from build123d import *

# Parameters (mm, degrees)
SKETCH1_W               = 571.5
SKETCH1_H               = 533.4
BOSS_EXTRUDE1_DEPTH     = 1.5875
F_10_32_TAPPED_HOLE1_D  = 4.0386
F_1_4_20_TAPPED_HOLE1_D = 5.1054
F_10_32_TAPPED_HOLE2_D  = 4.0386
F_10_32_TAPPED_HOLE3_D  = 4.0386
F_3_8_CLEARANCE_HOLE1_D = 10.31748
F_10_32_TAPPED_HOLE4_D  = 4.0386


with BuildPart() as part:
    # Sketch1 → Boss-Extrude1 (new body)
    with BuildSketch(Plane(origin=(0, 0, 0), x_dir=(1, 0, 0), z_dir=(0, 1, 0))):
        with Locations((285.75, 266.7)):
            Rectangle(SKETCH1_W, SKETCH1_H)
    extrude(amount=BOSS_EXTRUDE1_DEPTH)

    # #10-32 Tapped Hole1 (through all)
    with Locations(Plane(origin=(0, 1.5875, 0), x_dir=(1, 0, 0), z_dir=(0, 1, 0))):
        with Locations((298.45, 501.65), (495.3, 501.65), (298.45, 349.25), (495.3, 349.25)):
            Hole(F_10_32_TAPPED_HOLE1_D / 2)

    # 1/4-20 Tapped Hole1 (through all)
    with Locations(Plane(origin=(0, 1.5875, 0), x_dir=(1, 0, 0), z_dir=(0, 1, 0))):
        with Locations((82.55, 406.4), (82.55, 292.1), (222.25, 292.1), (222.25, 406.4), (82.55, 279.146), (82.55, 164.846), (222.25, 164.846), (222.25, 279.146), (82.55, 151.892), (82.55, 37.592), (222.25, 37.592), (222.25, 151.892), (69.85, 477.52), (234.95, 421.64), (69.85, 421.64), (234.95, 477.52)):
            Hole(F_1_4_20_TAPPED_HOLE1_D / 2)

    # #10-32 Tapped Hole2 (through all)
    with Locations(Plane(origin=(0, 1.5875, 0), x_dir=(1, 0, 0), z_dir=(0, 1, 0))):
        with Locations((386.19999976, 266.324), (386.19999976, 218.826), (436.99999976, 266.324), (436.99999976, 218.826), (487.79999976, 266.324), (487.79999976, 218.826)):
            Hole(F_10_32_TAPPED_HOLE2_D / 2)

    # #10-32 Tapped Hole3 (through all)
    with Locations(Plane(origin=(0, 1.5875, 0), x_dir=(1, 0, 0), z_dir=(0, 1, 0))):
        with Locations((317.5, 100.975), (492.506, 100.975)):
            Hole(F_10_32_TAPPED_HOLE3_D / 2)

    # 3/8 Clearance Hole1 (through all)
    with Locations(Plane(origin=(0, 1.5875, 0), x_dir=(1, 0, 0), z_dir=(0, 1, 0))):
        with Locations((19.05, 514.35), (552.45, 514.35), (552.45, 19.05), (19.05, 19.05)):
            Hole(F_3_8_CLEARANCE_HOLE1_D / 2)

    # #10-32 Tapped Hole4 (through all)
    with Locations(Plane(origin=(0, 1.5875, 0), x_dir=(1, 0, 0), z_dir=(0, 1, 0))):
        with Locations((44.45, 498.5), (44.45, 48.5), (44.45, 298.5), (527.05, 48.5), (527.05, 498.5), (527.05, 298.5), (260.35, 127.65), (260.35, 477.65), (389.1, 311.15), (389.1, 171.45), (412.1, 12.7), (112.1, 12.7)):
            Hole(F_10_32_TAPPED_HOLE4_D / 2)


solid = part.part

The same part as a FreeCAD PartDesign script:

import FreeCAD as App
import Part
import Sketcher
Q = App.Units.Quantity


def add_polygon(sketch, points):
    """Adds a closed chain of lines whose ends are joined by coincident constraints."""
    first, n = sketch.GeometryCount, len(points)
    for a, b in zip(points, points[1:] + points[:1]):
        sketch.addGeometry(Part.LineSegment(App.Vector(*a, 0), App.Vector(*b, 0)), False)
    for i in range(n):
        sketch.addConstraint(Sketcher.Constraint("Coincident", first + i, 2, first + (i + 1) % n, 1))

doc = App.newDocument("Part")
params = doc.addObject("Spreadsheet::Sheet", "Params")
for row, (alias, value) in enumerate([
    ("sketch1_height", "21 in"),
    ("sketch1_width", "22.5 in"),
    ("pad1_length", "0.0625 in"),
    ("sketch2_diameter", "0.159 in"),
    ("hole_diameter", "0.159 in"),
    ("sketch3_diameter", "0.201 in"),
    ("hole2_diameter", "0.201 in"),
    ("sketch4_diameter", "0.159 in"),
    ("hole3_diameter", "0.159 in"),
    ("sketch5_diameter", "0.159 in"),
    ("hole4_diameter", "0.159 in"),
    ("hole5_diameter", "0.4062 in"),
    ("sketch7_diameter", "0.159 in"),
    ("hole6_diameter", "0.159 in"),
], start=1):
    params.set(f"A{row}", alias)
    params.set(f"B{row}", "=" + value)
    params.setAlias(f"B{row}", alias)

body = doc.addObject("PartDesign::Body", "Body")

# Sketch on XZ plane
sketch1 = body.newObject("Sketcher::SketchObject", "Sketch")
sketch1.AttachmentSupport = (doc.getObject("XZ_Plane"), [""])
sketch1.MapMode = "FlatFace"
add_polygon(sketch1, [(0, -533), (0, 0), (572, 0), (572, -533)])  # lines 0-3
sketch1.addConstraint([
    Sketcher.Constraint("Vertical", 0),
    Sketcher.Constraint("Horizontal", 1),
    Sketcher.Constraint("Vertical", 2),
    Sketcher.Constraint("Horizontal", 3),
    Sketcher.Constraint("Coincident", 0, 2, -1, 1),
    Sketcher.Constraint("DistanceY", 0, 1, 0, 2, Q("21 in")),
    Sketcher.Constraint("DistanceX", 1, 1, 1, 2, Q("22.5 in")),
])
sketch1.setExpression("Constraints[9]", "Params.sketch1_height")
sketch1.setExpression("Constraints[10]", "Params.sketch1_width")
pad1 = body.newObject("PartDesign::Pad", "Pad")
pad1.Profile = sketch1
pad1.setExpression("Length", "Params.pad1_length")
pad1.Reversed = True

# Sketch on XZ plane
sketch2 = body.newObject("Sketcher::SketchObject", "Sketch001")
sketch2.AttachmentSupport = (doc.getObject("XZ_Plane"), [""])
sketch2.MapMode = "FlatFace"
sketch2.AttachmentOffset = App.Placement(App.Vector(0, 0, -0.0625 * 25.4), App.Rotation())
sketch2.addGeometry([
    Part.Circle(App.Vector(298.4, -501.6, 0), App.Vector(0, 0, 1), 2),
    Part.Circle(App.Vector(495.3, -501.6, 0), App.Vector(0, 0, 1), 2),
    Part.Circle(App.Vector(298.4, -349.2, 0), App.Vector(0, 0, 1), 2),
    Part.Circle(App.Vector(495.3, -349.2, 0), App.Vector(0, 0, 1), 2),
], False)
sketch2.addConstraint([
    Sketcher.Constraint("Equal", 0, 1),
    Sketcher.Constraint("Equal", 1, 2),
    Sketcher.Constraint("Equal", 2, 3),
    Sketcher.Constraint("Horizontal", 0, 3, 1, 3),
    Sketcher.Constraint("Horizontal", 2, 3, 3, 3),
    Sketcher.Constraint("Vertical", 0, 3, 2, 3),
    Sketcher.Constraint("Vertical", 1, 3, 3, 3),
    Sketcher.Constraint("Diameter", 0, Q("0.159 in")),
    Sketcher.Constraint("DistanceY", 0, 3, 2, 3, Q("6 in")),
    Sketcher.Constraint("DistanceX", -1, 1, 1, 3, Q("19.5 in")),
    Sketcher.Constraint("DistanceX", -1, 1, 0, 3, Q("11.75 in")),
    Sketcher.Constraint("DistanceY", 0, 3, -1, 1, Q("19.75 in")),
])
sketch2.setExpression("Constraints[7]", "Params.sketch2_diameter")
doc.recompute()
hole = body.newObject("PartDesign::Hole", "Hole")
hole.Profile = sketch2
hole.ThreadType = "None"
hole.setExpression("Diameter", "Params.hole_diameter")
hole.DepthType = "ThroughAll"
hole.Reversed = True

# Sketch on XZ plane
sketch3 = body.newObject("Sketcher::SketchObject", "Sketch002")
sketch3.AttachmentSupport = (doc.getObject("XZ_Plane"), [""])
sketch3.MapMode = "FlatFace"
sketch3.AttachmentOffset = App.Placement(App.Vector(0, 0, -0.0625 * 25.4), App.Rotation())
sketch3.addGeometry([
    Part.Circle(App.Vector(82.5, -406.4, 0), App.Vector(0, 0, 1), 2.6),  # 0
    Part.Circle(App.Vector(82.5, -292.1, 0), App.Vector(0, 0, 1), 2.6),  # 1
    Part.Circle(App.Vector(222.2, -292.1, 0), App.Vector(0, 0, 1), 2.6),  # 2
    Part.Circle(App.Vector(222.2, -406.4, 0), App.Vector(0, 0, 1), 2.6),  # 3
    Part.Circle(App.Vector(82.5, -279.1, 0), App.Vector(0, 0, 1), 2.6),  # 4
    Part.Circle(App.Vector(82.5, -164.8, 0), App.Vector(0, 0, 1), 2.6),  # 5
    Part.Circle(App.Vector(222.2, -164.8, 0), App.Vector(0, 0, 1), 2.6),  # 6
    Part.Circle(App.Vector(222.2, -279.1, 0), App.Vector(0, 0, 1), 2.6),  # 7
    Part.Circle(App.Vector(82.5, -151.9, 0), App.Vector(0, 0, 1), 2.6),  # 8
    Part.Circle(App.Vector(82.5, -37.6, 0), App.Vector(0, 0, 1), 2.6),  # 9
    Part.Circle(App.Vector(222.2, -37.6, 0), App.Vector(0, 0, 1), 2.6),  # 10
    Part.Circle(App.Vector(222.2, -151.9, 0), App.Vector(0, 0, 1), 2.6),  # 11
    Part.Circle(App.Vector(69.8, -477.5, 0), App.Vector(0, 0, 1), 2.6),  # 12
    Part.Circle(App.Vector(234.9, -421.6, 0), App.Vector(0, 0, 1), 2.6),  # 13
    Part.Circle(App.Vector(69.8, -421.6, 0), App.Vector(0, 0, 1), 2.6),  # 14
    Part.Circle(App.Vector(234.9, -477.5, 0), App.Vector(0, 0, 1), 2.6),  # 15
], False)
sketch3.addConstraint([
    Sketcher.Constraint("Equal", 0, 1),
    Sketcher.Constraint("Equal", 1, 2),
    Sketcher.Constraint("Equal", 2, 3),
    Sketcher.Constraint("Equal", 3, 4),
    Sketcher.Constraint("Equal", 4, 5),
    Sketcher.Constraint("Equal", 5, 6),
    Sketcher.Constraint("Equal", 6, 7),
    Sketcher.Constraint("Equal", 7, 8),
    Sketcher.Constraint("Equal", 8, 9),
    Sketcher.Constraint("Equal", 9, 10),
    Sketcher.Constraint("Equal", 10, 11),
    Sketcher.Constraint("Equal", 11, 12),
    Sketcher.Constraint("Equal", 12, 13),
    Sketcher.Constraint("Equal", 13, 14),
    Sketcher.Constraint("Equal", 14, 15),
    Sketcher.Constraint("Horizontal", 1, 3, 2, 3),
    Sketcher.Constraint("Horizontal", 0, 3, 3, 3),
    Sketcher.Constraint("Horizontal", 5, 3, 6, 3),
    Sketcher.Constraint("Horizontal", 4, 3, 7, 3),
    Sketcher.Constraint("Horizontal", 9, 3, 10, 3),
    Sketcher.Constraint("Horizontal", 8, 3, 11, 3),
    Sketcher.Constraint("Horizontal", 13, 3, 14, 3),
    Sketcher.Constraint("Horizontal", 12, 3, 15, 3),
    Sketcher.Constraint("Vertical", 0, 3, 1, 3),
    Sketcher.Constraint("Vertical", 2, 3, 3, 3),
    Sketcher.Constraint("Vertical", 1, 3, 4, 3),
    Sketcher.Constraint("Vertical", 4, 3, 5, 3),
    Sketcher.Constraint("Vertical", 3, 3, 6, 3),
    Sketcher.Constraint("Vertical", 6, 3, 7, 3),
    Sketcher.Constraint("Vertical", 5, 3, 8, 3),
    Sketcher.Constraint("Vertical", 8, 3, 9, 3),
    Sketcher.Constraint("Vertical", 7, 3, 10, 3),
    Sketcher.Constraint("Vertical", 10, 3, 11, 3),
    Sketcher.Constraint("Vertical", 12, 3, 14, 3),
    Sketcher.Constraint("Vertical", 13, 3, 15, 3),
    Sketcher.Constraint("Diameter", 0, Q("0.201 in")),
    Sketcher.Constraint("DistanceY", 0, 3, -1, 1, Q("16 in")),
    Sketcher.Constraint("DistanceX", 12, 3, 3, 3, Q("6 in")),
    Sketcher.Constraint("DistanceX", 0, 3, 13, 3, Q("6 in")),
    Sketcher.Constraint("DistanceY", 1, 3, -1, 1, Q("11.5 in")),
    Sketcher.Constraint("DistanceY", 12, 3, -1, 1, Q("18.8 in")),
    Sketcher.Constraint("DistanceY", 13, 3, -1, 1, Q("16.6 in")),
    Sketcher.Constraint("DistanceX", 1, 3, 2, 3, Q("5.5 in")),
    Sketcher.Constraint("DistanceY", 4, 3, 5, 3, Q("4.5 in")),
    Sketcher.Constraint("DistanceY", 8, 3, 9, 3, Q("4.5 in")),
    Sketcher.Constraint("DistanceX", -1, 1, 0, 3, Q("3.25 in")),
    Sketcher.Constraint("DistanceY", 4, 3, -1, 1, Q("10.99 in")),
    Sketcher.Constraint("DistanceY", 8, 3, -1, 1, Q("5.98 in")),
])
sketch3.setExpression("Constraints[35]", "Params.sketch3_diameter")
doc.recompute()
hole2 = body.newObject("PartDesign::Hole", "Hole001")
hole2.Profile = sketch3
hole2.ThreadType = "None"
hole2.setExpression("Diameter", "Params.hole2_diameter")
hole2.DepthType = "ThroughAll"
hole2.Reversed = True

# Sketch on XZ plane
sketch4 = body.newObject("Sketcher::SketchObject", "Sketch003")
sketch4.AttachmentSupport = (doc.getObject("XZ_Plane"), [""])
sketch4.MapMode = "FlatFace"
sketch4.AttachmentOffset = App.Placement(App.Vector(0, 0, -0.0625 * 25.4), App.Rotation())
sketch4.addGeometry([
    Part.Circle(App.Vector(386.2, -266.3, 0), App.Vector(0, 0, 1), 2),  # 0
    Part.Circle(App.Vector(386.2, -218.8, 0), App.Vector(0, 0, 1), 2),  # 1
    Part.Circle(App.Vector(437, -266.3, 0), App.Vector(0, 0, 1), 2),  # 2
    Part.Circle(App.Vector(437, -218.8, 0), App.Vector(0, 0, 1), 2),  # 3
    Part.Circle(App.Vector(487.8, -266.3, 0), App.Vector(0, 0, 1), 2),  # 4
    Part.Circle(App.Vector(487.8, -218.8, 0), App.Vector(0, 0, 1), 2),  # 5
], False)
sketch4.addConstraint([
    Sketcher.Constraint("Equal", 0, 1),
    Sketcher.Constraint("Equal", 1, 2),
    Sketcher.Constraint("Equal", 2, 3),
    Sketcher.Constraint("Equal", 3, 4),
    Sketcher.Constraint("Equal", 4, 5),
    Sketcher.Constraint("Horizontal", 0, 3, 2, 3),
    Sketcher.Constraint("Horizontal", 1, 3, 3, 3),
    Sketcher.Constraint("Horizontal", 2, 3, 4, 3),
    Sketcher.Constraint("Horizontal", 3, 3, 5, 3),
    Sketcher.Constraint("Vertical", 0, 3, 1, 3),
    Sketcher.Constraint("Vertical", 2, 3, 3, 3),
    Sketcher.Constraint("Vertical", 4, 3, 5, 3),
    Sketcher.Constraint("Diameter", 0, Q("0.159 in")),
    Sketcher.Constraint("DistanceX", 0, 3, 2, 3, Q("2 in")),
    Sketcher.Constraint("DistanceX", 2, 3, 4, 3, Q("2 in")),
    Sketcher.Constraint("DistanceY", 0, 3, 1, 3, Q("1.87 in")),
    Sketcher.Constraint("DistanceX", -1, 1, 0, 3, 386.2),
    Sketcher.Constraint("DistanceY", 0, 3, -1, 1, 266.324),
])
sketch4.setExpression("Constraints[12]", "Params.sketch4_diameter")
doc.recompute()
hole3 = body.newObject("PartDesign::Hole", "Hole002")
hole3.Profile = sketch4
hole3.ThreadType = "None"
hole3.setExpression("Diameter", "Params.hole3_diameter")
hole3.DepthType = "ThroughAll"
hole3.Reversed = True

# Sketch on XZ plane
sketch5 = body.newObject("Sketcher::SketchObject", "Sketch004")
sketch5.AttachmentSupport = (doc.getObject("XZ_Plane"), [""])
sketch5.MapMode = "FlatFace"
sketch5.AttachmentOffset = App.Placement(App.Vector(0, 0, -0.0625 * 25.4), App.Rotation())
sketch5.addGeometry([
    Part.Circle(App.Vector(317.5, -101, 0), App.Vector(0, 0, 1), 2),
    Part.Circle(App.Vector(492.5, -101, 0), App.Vector(0, 0, 1), 2),
], False)
sketch5.addConstraint([
    Sketcher.Constraint("Equal", 0, 1),
    Sketcher.Constraint("Horizontal", 0, 3, 1, 3),
    Sketcher.Constraint("Diameter", 0, Q("0.159 in")),
    Sketcher.Constraint("DistanceX", -1, 1, 0, 3, Q("12.5 in")),
    Sketcher.Constraint("DistanceX", -1, 1, 1, 3, Q("19.39 in")),
    Sketcher.Constraint("DistanceY", 0, 3, -1, 1, 100.975),
])
sketch5.setExpression("Constraints[2]", "Params.sketch5_diameter")
doc.recompute()
hole4 = body.newObject("PartDesign::Hole", "Hole003")
hole4.Profile = sketch5
hole4.ThreadType = "None"
hole4.setExpression("Diameter", "Params.hole4_diameter")
hole4.DepthType = "ThroughAll"
hole4.Reversed = True

# Sketch on XZ plane
sketch6 = body.newObject("Sketcher::SketchObject", "Sketch005")
sketch6.AttachmentSupport = (doc.getObject("XZ_Plane"), [""])
sketch6.MapMode = "FlatFace"
sketch6.AttachmentOffset = App.Placement(App.Vector(0, 0, -0.0625 * 25.4), App.Rotation())
sketch6.addGeometry([
    Part.Circle(App.Vector(19, -514, 0), App.Vector(0, 0, 1), 5),
    Part.Circle(App.Vector(552, -514, 0), App.Vector(0, 0, 1), 5),
    Part.Circle(App.Vector(552, -19, 0), App.Vector(0, 0, 1), 5),
    Part.Circle(App.Vector(19, -19, 0), App.Vector(0, 0, 1), 5),
], False)
sketch6.addConstraint([
    Sketcher.Constraint("Equal", 0, 1),
    Sketcher.Constraint("Equal", 1, 2),
    Sketcher.Constraint("Equal", 2, 3),
    Sketcher.Constraint("Horizontal", 0, 3, 1, 3),
    Sketcher.Constraint("Horizontal", 2, 3, 3, 3),
    Sketcher.Constraint("Vertical", 1, 3, 2, 3),
    Sketcher.Constraint("Vertical", 0, 3, 3, 3),
    Sketcher.Constraint("DistanceX", 0, 3, 1, 3, Q("21 in")),
    Sketcher.Constraint("Diameter", 0, Q("0.4062 in")),
    Sketcher.Constraint("DistanceY", 1, 3, 2, 3, Q("19.5 in")),
    Sketcher.Constraint("DistanceX", -1, 1, 0, 3, Q("0.75 in")),
    Sketcher.Constraint("DistanceY", 0, 3, -1, 1, Q("20.25 in")),
])
doc.recompute()
hole5 = body.newObject("PartDesign::Hole", "Hole004")
hole5.Profile = sketch6
hole5.ThreadType = "None"
hole5.setExpression("Diameter", "Params.hole5_diameter")
hole5.DepthType = "ThroughAll"
hole5.Reversed = True

# Sketch on XZ plane
sketch7 = body.newObject("Sketcher::SketchObject", "Sketch006")
sketch7.AttachmentSupport = (doc.getObject("XZ_Plane"), [""])
sketch7.MapMode = "FlatFace"
sketch7.AttachmentOffset = App.Placement(App.Vector(0, 0, -0.0625 * 25.4), App.Rotation())
sketch7.addGeometry([
    Part.Circle(App.Vector(44.5, -498.5, 0), App.Vector(0, 0, 1), 2),  # 0
    Part.Circle(App.Vector(44.5, -48.5, 0), App.Vector(0, 0, 1), 2),  # 1
    Part.Circle(App.Vector(44.5, -298.5, 0), App.Vector(0, 0, 1), 2),  # 2
    Part.Circle(App.Vector(527, -48.5, 0), App.Vector(0, 0, 1), 2),  # 3
    Part.Circle(App.Vector(527, -498.5, 0), App.Vector(0, 0, 1), 2),  # 4
    Part.Circle(App.Vector(527, -298.5, 0), App.Vector(0, 0, 1), 2),  # 5
    Part.Circle(App.Vector(260.4, -127.7, 0), App.Vector(0, 0, 1), 2),  # 6
    Part.Circle(App.Vector(260.4, -477.6, 0), App.Vector(0, 0, 1), 2),  # 7
    Part.Circle(App.Vector(389.1, -311.1, 0), App.Vector(0, 0, 1), 2),  # 8
    Part.Circle(App.Vector(389.1, -171.4, 0), App.Vector(0, 0, 1), 2),  # 9
    Part.Circle(App.Vector(412.1, -12.7, 0), App.Vector(0, 0, 1), 2),  # 10
    Part.Circle(App.Vector(112.1, -12.7, 0), App.Vector(0, 0, 1), 2),  # 11
], False)
sketch7.addConstraint([
    Sketcher.Constraint("Equal", 0, 1),
    Sketcher.Constraint("Equal", 1, 2),
    Sketcher.Constraint("Equal", 2, 3),
    Sketcher.Constraint("Equal", 3, 4),
    Sketcher.Constraint("Equal", 4, 5),
    Sketcher.Constraint("Equal", 5, 6),
    Sketcher.Constraint("Equal", 6, 7),
    Sketcher.Constraint("Equal", 7, 8),
    Sketcher.Constraint("Equal", 8, 9),
    Sketcher.Constraint("Equal", 9, 10),
    Sketcher.Constraint("Equal", 10, 11),
    Sketcher.Constraint("Horizontal", 1, 3, 3, 3),
    Sketcher.Constraint("Horizontal", 0, 3, 4, 3),
    Sketcher.Constraint("Horizontal", 2, 3, 5, 3),
    Sketcher.Constraint("Horizontal", 10, 3, 11, 3),
    Sketcher.Constraint("Vertical", 0, 3, 1, 3),
    Sketcher.Constraint("Vertical", 1, 3, 2, 3),
    Sketcher.Constraint("Vertical", 3, 3, 4, 3),
    Sketcher.Constraint("Vertical", 4, 3, 5, 3),
    Sketcher.Constraint("Vertical", 6, 3, 7, 3),
    Sketcher.Constraint("Vertical", 8, 3, 9, 3),
    Sketcher.Constraint("Diameter", 0, Q("0.159 in")),
    Sketcher.Constraint("DistanceX", 1, 3, 3, 3, Q("19 in")),
    Sketcher.Constraint("DistanceY", 10, 3, -1, 1, Q("0.5 in")),
    Sketcher.Constraint("DistanceX", 1, 3, 6, 3, Q("8.5 in")),
    Sketcher.Constraint("DistanceY", 8, 3, 9, 3, Q("5.5 in")),
    Sketcher.Constraint("DistanceX", -1, 1, 0, 3, Q("1.75 in")),
    Sketcher.Constraint("DistanceY", 8, 3, -1, 1, Q("12.25 in")),
    Sketcher.Constraint("DistanceY", 0, 3, -1, 1, 498.5),
    Sketcher.Constraint("DistanceY", 1, 3, -1, 1, 48.5),
    Sketcher.Constraint("DistanceY", 2, 3, -1, 1, 298.5),
    Sketcher.Constraint("DistanceY", 6, 3, -1, 1, 127.65),
    Sketcher.Constraint("DistanceY", 7, 3, -1, 1, 477.65),
    Sketcher.Constraint("DistanceX", -1, 1, 8, 3, 389.1),
    Sketcher.Constraint("DistanceX", -1, 1, 10, 3, 412.1),
    Sketcher.Constraint("DistanceX", -1, 1, 11, 3, 112.1),
])
sketch7.setExpression("Constraints[21]", "Params.sketch7_diameter")
doc.recompute()
hole6 = body.newObject("PartDesign::Hole", "Hole005")
hole6.Profile = sketch7
hole6.ThreadType = "None"
hole6.setExpression("Diameter", "Params.hole6_diameter")
hole6.DepthType = "ThroughAll"
hole6.Reversed = True

doc.recompute()
